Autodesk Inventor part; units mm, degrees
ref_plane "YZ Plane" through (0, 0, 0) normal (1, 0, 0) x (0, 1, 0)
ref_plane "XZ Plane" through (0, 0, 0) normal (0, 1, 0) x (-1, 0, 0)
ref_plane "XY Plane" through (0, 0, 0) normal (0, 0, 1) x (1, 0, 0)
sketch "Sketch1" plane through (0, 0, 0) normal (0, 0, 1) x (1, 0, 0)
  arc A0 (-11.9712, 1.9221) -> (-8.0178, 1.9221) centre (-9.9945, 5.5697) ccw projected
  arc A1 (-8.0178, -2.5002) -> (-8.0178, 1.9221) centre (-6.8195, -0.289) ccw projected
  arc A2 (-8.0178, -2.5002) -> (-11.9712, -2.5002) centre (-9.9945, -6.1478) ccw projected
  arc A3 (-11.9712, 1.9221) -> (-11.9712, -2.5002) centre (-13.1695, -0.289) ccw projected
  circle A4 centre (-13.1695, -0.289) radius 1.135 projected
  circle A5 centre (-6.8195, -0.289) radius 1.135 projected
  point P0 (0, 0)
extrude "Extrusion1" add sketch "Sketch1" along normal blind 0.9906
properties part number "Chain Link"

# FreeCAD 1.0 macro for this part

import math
import FreeCAD as App
import Part
import Sketcher
Q = App.Units.Quantity

doc = App.newDocument("Part")
body = doc.addObject("PartDesign::Body", "Body")

# Sketch on XY plane
sketch1 = body.newObject("Sketcher::SketchObject", "Sketch")
sketch1.AttachmentSupport = (doc.getObject("XY_Plane"), [""])
sketch1.MapMode = "FlatFace"
sketch1.addGeometry(Part.ArcOfCircle(Part.Circle(App.Vector(-10, 5.6, 0), App.Vector(0, 0, 1), 4.1), math.radians(-118), math.radians(-62)), False)
sketch1.addGeometry(Part.ArcOfCircle(Part.Circle(App.Vector(-13.2, -0.3, 0), App.Vector(0, 0, 1), 2.5), math.radians(62), math.radians(298)), False)
sketch1.addGeometry(Part.ArcOfCircle(Part.Circle(App.Vector(-10, -6.1, 0), App.Vector(0, 0, 1), 4.1), math.radians(62), math.radians(118)), False)
sketch1.addGeometry(Part.ArcOfCircle(Part.Circle(App.Vector(-6.8, -0.3, 0), App.Vector(0, 0, 1), 2.5), math.radians(-118), math.radians(118)), False)
sketch1.addGeometry(Part.Circle(App.Vector(-13.2, -0.3, 0), App.Vector(0, 0, 1), 1.1), False)
sketch1.addGeometry(Part.Circle(App.Vector(-6.8, -0.3, 0), App.Vector(0, 0, 1), 1.1), False)
sketch1.addConstraint(Sketcher.Constraint("Tangent", 0, 1, 1, 1))
sketch1.addConstraint(Sketcher.Constraint("Tangent", 1, 2, 2, 2))
sketch1.addConstraint(Sketcher.Constraint("Tangent", 2, 1, 3, 1))
sketch1.addConstraint(Sketcher.Constraint("Tangent", 3, 2, 0, 2))
sketch1.addConstraint(Sketcher.Constraint("Coincident", 4, 3, 1, 3))
sketch1.addConstraint(Sketcher.Constraint("Coincident", 5, 3, 3, 3))
sketch1.addConstraint(Sketcher.Constraint("Equal", 0, 2))
sketch1.addConstraint(Sketcher.Constraint("Equal", 1, 3))
sketch1.addConstraint(Sketcher.Constraint("Equal", 4, 5))
sketch1.addConstraint(Sketcher.Constraint("Horizontal", 1, 3, 3, 3))
sketch1.addConstraint(Sketcher.Constraint("Diameter", 4, Q("2.27 mm")))
sketch1.addConstraint(Sketcher.Constraint("Radius", 0, Q("4.1488 mm")))
sketch1.addConstraint(Sketcher.Constraint("Radius", 1, Q("2.515 mm")))
sketch1.addConstraint(Sketcher.Constraint("DistanceX", 1, 3, 3, 3, Q("0.25 in")))
sketch1.addConstraint(Sketcher.Constraint("DistanceX", 0, 1, -1, 1, Q("0.4713 in")))
sketch1.addConstraint(Sketcher.Constraint("DistanceY", -1, 1, 0, 3, Q("5.5697 mm")))
pad1 = body.newObject("PartDesign::Pad", "Pad")
pad1.Profile = sketch1
pad1.Length = Q("0.039 in")

doc.recompute()
